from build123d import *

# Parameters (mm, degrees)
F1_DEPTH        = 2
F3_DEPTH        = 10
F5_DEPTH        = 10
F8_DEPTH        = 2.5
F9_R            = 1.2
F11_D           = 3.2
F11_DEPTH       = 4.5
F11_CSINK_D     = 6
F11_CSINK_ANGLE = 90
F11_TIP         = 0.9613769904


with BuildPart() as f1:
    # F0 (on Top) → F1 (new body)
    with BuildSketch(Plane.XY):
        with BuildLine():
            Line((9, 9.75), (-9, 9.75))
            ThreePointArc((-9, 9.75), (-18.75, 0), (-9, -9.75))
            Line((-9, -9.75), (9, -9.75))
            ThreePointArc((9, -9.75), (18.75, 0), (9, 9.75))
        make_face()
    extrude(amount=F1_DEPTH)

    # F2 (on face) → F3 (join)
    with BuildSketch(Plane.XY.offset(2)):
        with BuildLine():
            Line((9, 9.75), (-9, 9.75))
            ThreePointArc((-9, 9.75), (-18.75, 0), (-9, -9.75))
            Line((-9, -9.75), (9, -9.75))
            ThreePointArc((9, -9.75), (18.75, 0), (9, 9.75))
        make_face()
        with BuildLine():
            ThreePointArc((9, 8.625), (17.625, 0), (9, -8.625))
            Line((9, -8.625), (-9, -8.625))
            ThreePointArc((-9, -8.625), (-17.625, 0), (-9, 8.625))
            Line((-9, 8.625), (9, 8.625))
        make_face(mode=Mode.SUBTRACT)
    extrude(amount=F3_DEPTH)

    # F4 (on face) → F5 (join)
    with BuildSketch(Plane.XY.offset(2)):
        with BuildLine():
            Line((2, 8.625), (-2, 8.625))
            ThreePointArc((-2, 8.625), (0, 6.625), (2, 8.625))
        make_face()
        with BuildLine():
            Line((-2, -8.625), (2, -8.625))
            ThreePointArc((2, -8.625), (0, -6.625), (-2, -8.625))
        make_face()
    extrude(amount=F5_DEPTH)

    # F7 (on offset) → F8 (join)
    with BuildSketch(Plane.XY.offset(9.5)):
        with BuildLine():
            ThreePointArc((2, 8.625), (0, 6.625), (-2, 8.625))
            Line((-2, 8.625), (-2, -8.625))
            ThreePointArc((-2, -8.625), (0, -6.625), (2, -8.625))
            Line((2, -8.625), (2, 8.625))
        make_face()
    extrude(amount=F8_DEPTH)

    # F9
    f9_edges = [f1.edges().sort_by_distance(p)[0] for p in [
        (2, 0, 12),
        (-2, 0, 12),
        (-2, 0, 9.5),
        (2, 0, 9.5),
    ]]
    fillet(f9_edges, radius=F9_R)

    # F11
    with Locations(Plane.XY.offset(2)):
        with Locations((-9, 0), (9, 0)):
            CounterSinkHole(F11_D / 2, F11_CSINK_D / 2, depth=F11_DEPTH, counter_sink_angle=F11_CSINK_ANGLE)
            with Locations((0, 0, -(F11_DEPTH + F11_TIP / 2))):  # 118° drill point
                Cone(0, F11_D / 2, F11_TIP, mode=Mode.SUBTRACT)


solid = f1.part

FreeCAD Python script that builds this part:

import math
import FreeCAD as App
import Part
import Sketcher

V = App.Vector
Q = App.Units.Quantity


def edges_at(feature, points):
    """Names of the edges that pass closest to the given points."""
    edges = feature.Shape.Edges
    near = lambda p: min(range(len(edges)), key=lambda i: edges[i].distToShape(Part.Vertex(*p))[0])
    return sorted({f"Edge{near(p) + 1}" for p in points})

doc = App.newDocument("Part")
body = doc.addObject("PartDesign::Body", "Body")

# Sketch on XY plane
sketch1 = body.newObject("Sketcher::SketchObject", "Sketch")
sketch1.AttachmentSupport = (doc.getObject("XY_Plane"), [""])
sketch1.MapMode = "FlatFace"
sketch1.addGeometry([
    Part.LineSegment(V(9, 10, 0), V(-9, 10, 0)),
    Part.ArcOfCircle(Part.Circle(V(-9, 0, 0), V(0, 0, 1), 10), math.radians(90), math.radians(270)),
    Part.LineSegment(V(-9, -10, 0), V(9, -10, 0)),
    Part.ArcOfCircle(Part.Circle(V(9, 0, 0), V(0, 0, 1), 10), math.radians(-90), math.radians(90)),
], False)
sketch1.addConstraint([
    Sketcher.Constraint("Tangent", 0, 2, 1, 1),
    Sketcher.Constraint("Tangent", 1, 2, 2, 1),
    Sketcher.Constraint("Tangent", 2, 2, 3, 1),
    Sketcher.Constraint("Tangent", 3, 2, 0, 1),
    Sketcher.Constraint("Horizontal", 0),
    Sketcher.Constraint("Horizontal", 2),
    Sketcher.Constraint("Symmetric", 1, 3, 3, 3, -1, 1),
    Sketcher.Constraint("DistanceX", 0, 2, 0, 1, Q("18 mm")),
    Sketcher.Constraint("Radius", 1, Q("9.75 mm")),
])
pad1 = body.newObject("PartDesign::Pad", "Pad")
pad1.Profile = sketch1
pad1.Length = 2

# Sketch on XY plane
sketch2 = body.newObject("Sketcher::SketchObject", "Sketch001")
sketch2.AttachmentSupport = (doc.getObject("XY_Plane"), [""])
sketch2.MapMode = "FlatFace"
sketch2.AttachmentOffset = App.Placement(V(0, 0, 2), App.Rotation())
sketch2.addGeometry([
    Part.LineSegment(V(9, 10, 0), V(-9, 10, 0)),  # 0
    Part.ArcOfCircle(Part.Circle(V(-9, 0, 0), V(0, 0, 1), 10), math.radians(90), math.radians(270)),  # 1
    Part.LineSegment(V(-9, -10, 0), V(9, -10, 0)),  # 2
    Part.ArcOfCircle(Part.Circle(V(9, 0, 0), V(0, 0, 1), 10), math.radians(-90), math.radians(90)),  # 3
    Part.LineSegment(V(-9, 9, 0), V(9, 9, 0)),  # 4
    Part.ArcOfCircle(Part.Circle(V(9, 0, 0), V(0, 0, 1), 9), math.radians(-90), math.radians(90)),  # 5
    Part.LineSegment(V(9, -9, 0), V(-9, -9, 0)),  # 6
    Part.ArcOfCircle(Part.Circle(V(-9, 0, 0), V(0, 0, 1), 9), math.radians(90), math.radians(270)),  # 7
], False)
sketch2.addConstraint([
    Sketcher.Constraint("Tangent", 0, 2, 1, 1),
    Sketcher.Constraint("Tangent", 1, 2, 2, 1),
    Sketcher.Constraint("Tangent", 2, 2, 3, 1),
    Sketcher.Constraint("Tangent", 3, 2, 0, 1),
    Sketcher.Constraint("Tangent", 4, 2, 5, 2),
    Sketcher.Constraint("Tangent", 5, 1, 6, 1),
    Sketcher.Constraint("Tangent", 6, 2, 7, 2),
    Sketcher.Constraint("Tangent", 7, 1, 4, 1),
    Sketcher.Constraint("Horizontal", 0),
    Sketcher.Constraint("Horizontal", 2),
    Sketcher.Constraint("Horizontal", 4),
    Sketcher.Constraint("Horizontal", 6),
    Sketcher.Constraint("Coincident", 5, 3, 3, 3),
    Sketcher.Constraint("Symmetric", 1, 3, 3, 3, -1, 1),
    Sketcher.Constraint("Vertical", 7, 3, 0, 2),
    Sketcher.Constraint("DistanceX", 0, 2, 0, 1, Q("18 mm")),
    Sketcher.Constraint("Radius", 1, Q("9.75 mm")),
    Sketcher.Constraint("Radius", 5, Q("8.625 mm")),
])
pad2 = body.newObject("PartDesign::Pad", "Pad001")
pad2.Profile = sketch2
pad2.Length = 10

# Sketch on XY plane
sketch3 = body.newObject("Sketcher::SketchObject", "Sketch002")
sketch3.AttachmentSupport = (doc.getObject("XY_Plane"), [""])
sketch3.MapMode = "FlatFace"
sketch3.AttachmentOffset = App.Placement(V(0, 0, 2), App.Rotation())
sketch3.addGeometry([
    Part.LineSegment(V(2, 8.6, 0), V(-2, 8.6, 0)),
    Part.ArcOfCircle(Part.Circle(V(0, 8.6, 0), V(0, 0, 1), 2), math.radians(180), math.radians(360)),
    Part.LineSegment(V(-2, -8.6, 0), V(2, -8.6, 0)),
    Part.ArcOfCircle(Part.Circle(V(0, -8.6, 0), V(0, 0, 1), 2), math.radians(0), math.radians(180)),
], False)
sketch3.addConstraint([
    Sketcher.Constraint("Coincident", 0, 1, 1, 2),
    Sketcher.Constraint("Coincident", 1, 1, 0, 2),
    Sketcher.Constraint("Coincident", 2, 1, 3, 2),
    Sketcher.Constraint("Coincident", 3, 1, 2, 2),
    Sketcher.Constraint("Horizontal", 0),
    Sketcher.Constraint("Horizontal", 2),
    Sketcher.Constraint("Equal", 1, 3),
    Sketcher.Constraint("Symmetric", 1, 3, 3, 3, -1, 1),
    Sketcher.Constraint("Symmetric", 1, 1, 2, 1, -1),
    Sketcher.Constraint("Horizontal", 1, 3, 0, 1),
    Sketcher.Constraint("Radius", 1, Q("2 mm")),
    Sketcher.Constraint("DistanceY", 3, 3, 1, 3, Q("17.25 mm")),
])
pad3 = body.newObject("PartDesign::Pad", "Pad002")
pad3.Profile = sketch3
pad3.Length = 10

# Sketch on XY plane
sketch4 = body.newObject("Sketcher::SketchObject", "Sketch003")
sketch4.AttachmentSupport = (doc.getObject("XY_Plane"), [""])
sketch4.MapMode = "FlatFace"
sketch4.AttachmentOffset = App.Placement(V(0, 0, 9.5), App.Rotation())
sketch4.addGeometry([
    Part.ArcOfCircle(Part.Circle(V(0, 8.6, 0), V(0, 0, 1), 2), math.radians(180), math.radians(360)),
    Part.LineSegment(V(-2, 8.6, 0), V(-2, -8.6, 0)),
    Part.ArcOfCircle(Part.Circle(V(0, -8.6, 0), V(0, 0, 1), 2), math.radians(0), math.radians(180)),
    Part.LineSegment(V(2, -8.6, 0), V(2, 8.6, 0)),
], False)
sketch4.addConstraint([
    Sketcher.Constraint("Tangent", 0, 1, 1, 1),
    Sketcher.Constraint("Tangent", 1, 2, 2, 2),
    Sketcher.Constraint("Tangent", 2, 1, 3, 1),
    Sketcher.Constraint("Tangent", 3, 2, 0, 2),
    Sketcher.Constraint("Vertical", 1),
    Sketcher.Constraint("Vertical", 3),
    Sketcher.Constraint("Symmetric", 0, 3, 2, 3, -1, 1),
    Sketcher.Constraint("Radius", 0, Q("2 mm")),
    Sketcher.Constraint("DistanceY", 1, 2, 1, 1, Q("17.25 mm")),
])
pad4 = body.newObject("PartDesign::Pad", "Pad003")
pad4.Profile = sketch4
pad4.Length = 2.5
doc.recompute()

fillet = body.newObject("PartDesign::Fillet", "Fillet")
fillet.Base = (pad4, edges_at(pad4, [
    (2, 0, 12),
    (-2, 0, 12),
    (-2, 0, 9.5),
    (2, 0, 9.5),
]))
fillet.Radius = 1.2

# Sketch on XY plane
sketch5 = body.newObject("Sketcher::SketchObject", "Sketch004")
sketch5.AttachmentSupport = (doc.getObject("XY_Plane"), [""])
sketch5.MapMode = "FlatFace"
sketch5.AttachmentOffset = App.Placement(V(0, 0, 2), App.Rotation())
sketch5.addGeometry([
    Part.Circle(V(-9, 0, 0), V(0, 0, 1), 1.6),
    Part.Circle(V(9, 0, 0), V(0, 0, 1), 1.6),
], False)
sketch5.addConstraint([
    Sketcher.Constraint("Equal", 0, 1),
    Sketcher.Constraint("Symmetric", 0, 3, 1, 3, -1, 1),
    Sketcher.Constraint("PointOnObject", 0, 3, -1),
    Sketcher.Constraint("Diameter", 0, Q("3.2 mm")),
    Sketcher.Constraint("DistanceX", 0, 3, -1, 1, Q("9 mm")),
])
doc.recompute()
hole = body.newObject("PartDesign::Hole", "Hole")
hole.Profile = sketch5
hole.ThreadType = "None"
hole.Diameter = 3.2
hole.DepthType = "Dimension"
hole.Depth = 4.5
hole.DrillPoint = "Angled"
hole.DrillPointAngle = 118
hole.HoleCutType = "Countersink"
hole.HoleCutDiameter = 6
hole.HoleCutCountersinkAngle = 90

doc.recompute()
